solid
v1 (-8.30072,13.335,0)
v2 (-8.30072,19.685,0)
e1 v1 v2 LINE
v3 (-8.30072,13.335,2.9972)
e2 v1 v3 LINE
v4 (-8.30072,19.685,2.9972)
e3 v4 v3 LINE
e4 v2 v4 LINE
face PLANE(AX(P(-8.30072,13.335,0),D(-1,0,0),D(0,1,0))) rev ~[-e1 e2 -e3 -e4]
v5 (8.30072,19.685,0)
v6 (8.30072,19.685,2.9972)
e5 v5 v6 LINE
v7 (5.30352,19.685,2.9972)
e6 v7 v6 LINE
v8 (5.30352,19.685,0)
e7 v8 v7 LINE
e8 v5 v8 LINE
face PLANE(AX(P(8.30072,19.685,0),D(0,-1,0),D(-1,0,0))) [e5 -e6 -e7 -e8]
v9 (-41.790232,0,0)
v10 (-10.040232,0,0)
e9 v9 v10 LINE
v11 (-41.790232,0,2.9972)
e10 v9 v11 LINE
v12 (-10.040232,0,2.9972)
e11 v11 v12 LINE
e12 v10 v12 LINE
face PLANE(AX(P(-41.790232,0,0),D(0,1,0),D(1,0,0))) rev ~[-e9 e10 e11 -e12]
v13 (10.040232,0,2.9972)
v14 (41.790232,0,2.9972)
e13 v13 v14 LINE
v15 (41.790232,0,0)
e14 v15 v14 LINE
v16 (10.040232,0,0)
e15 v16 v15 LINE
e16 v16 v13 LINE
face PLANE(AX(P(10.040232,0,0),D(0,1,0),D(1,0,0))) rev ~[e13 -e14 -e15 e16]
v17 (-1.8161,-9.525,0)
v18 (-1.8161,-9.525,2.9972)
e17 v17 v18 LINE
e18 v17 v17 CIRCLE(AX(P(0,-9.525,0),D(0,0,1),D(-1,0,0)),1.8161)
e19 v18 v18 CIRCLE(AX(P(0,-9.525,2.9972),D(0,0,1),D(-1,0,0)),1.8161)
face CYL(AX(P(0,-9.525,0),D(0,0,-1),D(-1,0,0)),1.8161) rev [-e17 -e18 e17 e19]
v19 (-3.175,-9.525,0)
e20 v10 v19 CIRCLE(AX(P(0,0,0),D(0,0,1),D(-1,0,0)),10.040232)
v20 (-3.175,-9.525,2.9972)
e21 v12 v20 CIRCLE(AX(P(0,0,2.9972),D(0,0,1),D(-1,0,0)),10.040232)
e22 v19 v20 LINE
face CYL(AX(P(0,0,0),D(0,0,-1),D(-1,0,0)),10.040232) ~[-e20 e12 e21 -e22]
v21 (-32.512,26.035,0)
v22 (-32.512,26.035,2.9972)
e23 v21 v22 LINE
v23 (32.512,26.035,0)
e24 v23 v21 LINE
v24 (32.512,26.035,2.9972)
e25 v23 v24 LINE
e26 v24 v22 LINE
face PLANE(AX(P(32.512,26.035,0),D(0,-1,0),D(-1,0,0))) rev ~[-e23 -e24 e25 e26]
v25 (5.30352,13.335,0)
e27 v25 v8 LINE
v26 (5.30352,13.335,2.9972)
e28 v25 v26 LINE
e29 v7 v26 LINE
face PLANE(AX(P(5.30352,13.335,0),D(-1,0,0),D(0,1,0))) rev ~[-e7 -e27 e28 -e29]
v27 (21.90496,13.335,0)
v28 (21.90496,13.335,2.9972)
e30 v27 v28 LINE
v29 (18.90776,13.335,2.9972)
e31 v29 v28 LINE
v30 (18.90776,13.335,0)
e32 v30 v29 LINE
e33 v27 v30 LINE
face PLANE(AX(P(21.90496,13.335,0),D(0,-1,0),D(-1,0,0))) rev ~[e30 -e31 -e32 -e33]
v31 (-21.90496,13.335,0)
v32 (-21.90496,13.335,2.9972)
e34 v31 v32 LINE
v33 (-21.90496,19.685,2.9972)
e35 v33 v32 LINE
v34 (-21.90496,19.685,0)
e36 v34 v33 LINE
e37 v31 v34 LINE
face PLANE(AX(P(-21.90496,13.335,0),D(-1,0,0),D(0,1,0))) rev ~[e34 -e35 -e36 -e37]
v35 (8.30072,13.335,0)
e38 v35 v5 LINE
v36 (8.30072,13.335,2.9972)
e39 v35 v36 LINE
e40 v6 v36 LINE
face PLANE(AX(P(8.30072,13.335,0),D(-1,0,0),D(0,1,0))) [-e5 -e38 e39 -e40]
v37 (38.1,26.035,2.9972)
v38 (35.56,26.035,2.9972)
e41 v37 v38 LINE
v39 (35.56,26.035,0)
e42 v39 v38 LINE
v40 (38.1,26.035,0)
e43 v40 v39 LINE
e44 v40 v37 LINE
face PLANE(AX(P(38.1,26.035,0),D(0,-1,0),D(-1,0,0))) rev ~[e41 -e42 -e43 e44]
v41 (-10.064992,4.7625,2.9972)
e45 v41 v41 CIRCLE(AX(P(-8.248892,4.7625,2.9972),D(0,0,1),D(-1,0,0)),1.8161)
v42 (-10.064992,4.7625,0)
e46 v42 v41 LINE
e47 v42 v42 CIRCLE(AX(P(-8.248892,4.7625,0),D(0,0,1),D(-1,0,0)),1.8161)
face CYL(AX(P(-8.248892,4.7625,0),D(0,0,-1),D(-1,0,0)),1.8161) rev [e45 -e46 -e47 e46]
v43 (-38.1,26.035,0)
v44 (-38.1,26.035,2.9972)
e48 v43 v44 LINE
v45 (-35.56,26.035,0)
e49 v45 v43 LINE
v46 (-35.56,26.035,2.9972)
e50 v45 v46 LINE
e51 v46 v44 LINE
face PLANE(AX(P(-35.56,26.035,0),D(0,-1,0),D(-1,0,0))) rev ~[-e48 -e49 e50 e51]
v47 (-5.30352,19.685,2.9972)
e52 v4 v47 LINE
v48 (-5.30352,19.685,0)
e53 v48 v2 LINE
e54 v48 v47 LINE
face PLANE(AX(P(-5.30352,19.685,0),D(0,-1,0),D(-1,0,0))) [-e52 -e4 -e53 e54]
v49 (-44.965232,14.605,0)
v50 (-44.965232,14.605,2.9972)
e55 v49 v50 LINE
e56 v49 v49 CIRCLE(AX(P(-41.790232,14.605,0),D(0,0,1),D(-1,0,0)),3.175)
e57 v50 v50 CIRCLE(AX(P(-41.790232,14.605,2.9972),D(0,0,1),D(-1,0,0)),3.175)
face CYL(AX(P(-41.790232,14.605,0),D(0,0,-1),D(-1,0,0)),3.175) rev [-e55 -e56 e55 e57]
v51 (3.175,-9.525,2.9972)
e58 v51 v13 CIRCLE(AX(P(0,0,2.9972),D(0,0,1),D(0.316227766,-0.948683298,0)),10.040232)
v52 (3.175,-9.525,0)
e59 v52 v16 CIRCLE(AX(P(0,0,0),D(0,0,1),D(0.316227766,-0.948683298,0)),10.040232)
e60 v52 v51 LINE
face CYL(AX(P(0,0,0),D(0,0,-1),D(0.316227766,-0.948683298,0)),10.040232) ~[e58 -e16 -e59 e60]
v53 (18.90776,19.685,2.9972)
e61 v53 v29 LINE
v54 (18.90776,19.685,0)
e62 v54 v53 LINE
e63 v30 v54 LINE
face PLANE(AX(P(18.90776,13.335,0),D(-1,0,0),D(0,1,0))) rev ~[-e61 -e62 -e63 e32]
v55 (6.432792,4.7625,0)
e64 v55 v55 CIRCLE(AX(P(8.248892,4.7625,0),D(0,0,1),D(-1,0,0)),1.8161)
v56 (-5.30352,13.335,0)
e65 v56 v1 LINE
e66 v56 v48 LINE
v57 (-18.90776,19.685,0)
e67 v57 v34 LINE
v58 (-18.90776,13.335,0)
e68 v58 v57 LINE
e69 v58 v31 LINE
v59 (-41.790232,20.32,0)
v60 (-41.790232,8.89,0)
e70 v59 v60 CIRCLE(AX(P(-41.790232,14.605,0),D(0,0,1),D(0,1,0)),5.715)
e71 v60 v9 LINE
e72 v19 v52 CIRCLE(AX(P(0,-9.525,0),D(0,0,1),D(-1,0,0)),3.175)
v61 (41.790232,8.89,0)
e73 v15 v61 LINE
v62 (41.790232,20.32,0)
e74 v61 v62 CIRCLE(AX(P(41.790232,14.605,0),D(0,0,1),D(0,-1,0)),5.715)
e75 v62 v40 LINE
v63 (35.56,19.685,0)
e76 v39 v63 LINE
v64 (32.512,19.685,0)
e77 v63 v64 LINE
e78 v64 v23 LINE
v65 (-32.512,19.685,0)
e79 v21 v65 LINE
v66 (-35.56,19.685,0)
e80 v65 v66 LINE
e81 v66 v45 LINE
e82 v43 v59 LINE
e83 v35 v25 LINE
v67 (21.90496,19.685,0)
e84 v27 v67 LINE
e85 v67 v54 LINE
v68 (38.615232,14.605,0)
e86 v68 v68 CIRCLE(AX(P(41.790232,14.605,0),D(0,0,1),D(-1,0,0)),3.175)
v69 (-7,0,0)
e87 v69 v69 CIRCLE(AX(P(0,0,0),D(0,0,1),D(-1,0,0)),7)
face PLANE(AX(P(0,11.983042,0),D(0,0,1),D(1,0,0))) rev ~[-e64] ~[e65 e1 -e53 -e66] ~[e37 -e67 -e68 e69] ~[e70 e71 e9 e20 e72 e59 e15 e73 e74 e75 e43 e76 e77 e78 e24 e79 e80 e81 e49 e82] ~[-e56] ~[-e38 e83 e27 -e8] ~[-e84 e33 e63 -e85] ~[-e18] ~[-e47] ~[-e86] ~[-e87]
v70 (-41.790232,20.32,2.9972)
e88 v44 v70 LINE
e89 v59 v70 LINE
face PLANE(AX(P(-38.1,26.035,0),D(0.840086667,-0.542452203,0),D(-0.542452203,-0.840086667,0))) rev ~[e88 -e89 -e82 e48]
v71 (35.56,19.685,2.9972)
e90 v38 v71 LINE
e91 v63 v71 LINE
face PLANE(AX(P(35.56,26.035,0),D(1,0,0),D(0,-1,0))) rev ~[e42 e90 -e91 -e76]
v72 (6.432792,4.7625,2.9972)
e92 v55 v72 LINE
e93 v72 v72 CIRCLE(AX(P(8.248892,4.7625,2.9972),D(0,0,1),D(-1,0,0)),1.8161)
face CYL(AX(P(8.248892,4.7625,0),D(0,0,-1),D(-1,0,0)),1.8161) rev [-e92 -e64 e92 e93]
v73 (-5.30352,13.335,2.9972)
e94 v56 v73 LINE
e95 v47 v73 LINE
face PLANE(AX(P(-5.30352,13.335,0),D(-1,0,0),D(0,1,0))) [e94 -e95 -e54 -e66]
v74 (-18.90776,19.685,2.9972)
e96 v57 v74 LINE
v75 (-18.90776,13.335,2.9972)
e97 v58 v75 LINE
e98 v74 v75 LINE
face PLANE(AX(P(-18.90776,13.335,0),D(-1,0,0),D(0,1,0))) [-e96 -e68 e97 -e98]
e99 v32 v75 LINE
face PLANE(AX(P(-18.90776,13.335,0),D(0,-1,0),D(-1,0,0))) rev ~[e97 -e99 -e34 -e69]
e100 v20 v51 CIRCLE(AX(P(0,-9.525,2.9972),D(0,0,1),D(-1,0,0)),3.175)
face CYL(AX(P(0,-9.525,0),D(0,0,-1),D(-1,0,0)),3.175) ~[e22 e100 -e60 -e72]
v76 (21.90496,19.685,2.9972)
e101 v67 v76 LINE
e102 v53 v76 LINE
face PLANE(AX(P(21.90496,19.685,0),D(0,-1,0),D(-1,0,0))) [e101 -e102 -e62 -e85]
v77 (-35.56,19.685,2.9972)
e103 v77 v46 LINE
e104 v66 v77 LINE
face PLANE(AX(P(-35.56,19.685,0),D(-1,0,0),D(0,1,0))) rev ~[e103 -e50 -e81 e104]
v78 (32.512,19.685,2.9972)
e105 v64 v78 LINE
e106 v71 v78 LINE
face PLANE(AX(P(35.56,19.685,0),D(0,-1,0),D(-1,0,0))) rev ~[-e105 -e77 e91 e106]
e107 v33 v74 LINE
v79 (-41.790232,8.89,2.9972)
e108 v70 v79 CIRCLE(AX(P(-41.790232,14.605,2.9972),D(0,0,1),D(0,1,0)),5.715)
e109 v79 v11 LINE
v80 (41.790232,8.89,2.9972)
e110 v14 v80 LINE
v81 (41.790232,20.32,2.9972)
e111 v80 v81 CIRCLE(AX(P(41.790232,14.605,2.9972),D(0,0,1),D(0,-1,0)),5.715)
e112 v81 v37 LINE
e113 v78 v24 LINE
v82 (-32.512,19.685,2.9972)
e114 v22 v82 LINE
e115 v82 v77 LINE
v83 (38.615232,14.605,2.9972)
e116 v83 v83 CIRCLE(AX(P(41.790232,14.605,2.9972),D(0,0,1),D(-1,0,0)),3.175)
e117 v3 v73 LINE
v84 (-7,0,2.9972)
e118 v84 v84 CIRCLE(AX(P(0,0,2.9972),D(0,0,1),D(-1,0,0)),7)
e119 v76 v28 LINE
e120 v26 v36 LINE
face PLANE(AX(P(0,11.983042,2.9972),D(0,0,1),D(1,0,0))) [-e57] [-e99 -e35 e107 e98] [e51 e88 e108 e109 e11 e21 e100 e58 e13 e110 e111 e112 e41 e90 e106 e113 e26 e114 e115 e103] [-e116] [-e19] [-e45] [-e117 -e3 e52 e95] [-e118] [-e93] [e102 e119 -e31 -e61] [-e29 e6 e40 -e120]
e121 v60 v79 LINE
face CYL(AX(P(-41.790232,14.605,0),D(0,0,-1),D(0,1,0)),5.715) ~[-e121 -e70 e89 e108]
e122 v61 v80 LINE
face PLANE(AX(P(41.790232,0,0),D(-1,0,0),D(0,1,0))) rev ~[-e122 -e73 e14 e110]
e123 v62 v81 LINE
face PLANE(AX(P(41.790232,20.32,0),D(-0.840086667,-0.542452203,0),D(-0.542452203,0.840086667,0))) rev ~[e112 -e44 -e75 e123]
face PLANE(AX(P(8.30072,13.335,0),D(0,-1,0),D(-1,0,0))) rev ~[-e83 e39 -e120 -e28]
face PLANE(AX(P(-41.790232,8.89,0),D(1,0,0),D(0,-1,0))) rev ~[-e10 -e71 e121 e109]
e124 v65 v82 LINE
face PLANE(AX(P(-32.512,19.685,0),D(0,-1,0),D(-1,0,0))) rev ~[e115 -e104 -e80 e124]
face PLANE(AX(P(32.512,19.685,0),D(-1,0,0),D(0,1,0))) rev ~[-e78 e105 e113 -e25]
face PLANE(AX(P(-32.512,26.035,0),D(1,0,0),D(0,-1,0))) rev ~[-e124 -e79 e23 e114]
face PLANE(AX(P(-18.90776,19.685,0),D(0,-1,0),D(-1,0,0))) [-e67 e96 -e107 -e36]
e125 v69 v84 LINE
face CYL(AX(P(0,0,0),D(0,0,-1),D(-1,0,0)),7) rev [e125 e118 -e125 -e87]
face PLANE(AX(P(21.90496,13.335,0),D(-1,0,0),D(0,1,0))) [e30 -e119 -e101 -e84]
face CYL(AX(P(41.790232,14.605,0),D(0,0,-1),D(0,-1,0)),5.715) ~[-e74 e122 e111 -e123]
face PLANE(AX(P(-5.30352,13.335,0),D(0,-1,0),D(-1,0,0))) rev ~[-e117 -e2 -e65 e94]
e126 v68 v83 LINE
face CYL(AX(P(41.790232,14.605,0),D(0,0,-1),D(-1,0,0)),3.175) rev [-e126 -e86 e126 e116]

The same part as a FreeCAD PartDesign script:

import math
import FreeCAD as App
import Part
import Sketcher

V = App.Vector
Q = App.Units.Quantity


def add_polygon(sketch, points):
    """Adds a closed chain of lines whose ends are joined by coincident constraints."""
    first, n = sketch.GeometryCount, len(points)
    for a, b in zip(points, points[1:] + points[:1]):
        sketch.addGeometry(Part.LineSegment(App.Vector(*a, 0), App.Vector(*b, 0)), False)
    for i in range(n):
        sketch.addConstraint(Sketcher.Constraint("Coincident", first + i, 2, first + (i + 1) % n, 1))

doc = App.newDocument("Part")
body = doc.addObject("PartDesign::Body", "Body")

sketch1 = body.newObject("Sketcher::SketchObject", "Sketch")
sketch1.AttachmentSupport = (doc.getObject("XY_Plane"), [""])
sketch1.MapMode = "FlatFace"
sketch1.addGeometry([
    Part.LineSegment(V(-35.6, 26, 0), V(-38.1, 26, 0)),
    Part.LineSegment(V(-38.1, 26, 0), V(-41.8, 20.3, 0)),
    Part.ArcOfCircle(Part.Circle(V(-41.8, 14.6, 0), V(0, 0, 1), 5.7), math.radians(90), math.radians(270)),
    Part.LineSegment(V(-41.8, 8.9, 0), V(-41.8, 0, 0)),
    Part.LineSegment(V(-41.8, 0, 0), V(-10, 0, 0)),
    Part.ArcOfCircle(Part.Circle(V(0, 0, 0), V(0, 0, 1), 10), math.radians(-180), math.radians(-108)),
    Part.ArcOfCircle(Part.Circle(V(0, -9.5, 0), V(0, 0, 1), 3.2), math.radians(180), math.radians(360)),
    Part.ArcOfCircle(Part.Circle(V(0, 0, 0), V(0, 0, 1), 10), math.radians(-72), math.radians(0)),
    Part.LineSegment(V(10, 0, 0), V(41.8, 0, 0)),
    Part.LineSegment(V(41.8, 0, 0), V(41.8, 8.9, 0)),
    Part.ArcOfCircle(Part.Circle(V(41.8, 14.6, 0), V(0, 0, 1), 5.7), math.radians(-90), math.radians(90)),
    Part.LineSegment(V(41.8, 20.3, 0), V(38.1, 26, 0)),
    Part.LineSegment(V(38.1, 26, 0), V(35.6, 26, 0)),
    Part.LineSegment(V(35.6, 26, 0), V(35.6, 19.7, 0)),
    Part.LineSegment(V(35.6, 19.7, 0), V(32.5, 19.7, 0)),
    Part.LineSegment(V(32.5, 19.7, 0), V(32.5, 26, 0)),
    Part.LineSegment(V(32.5, 26, 0), V(-32.5, 26, 0)),
    Part.LineSegment(V(-32.5, 26, 0), V(-32.5, 19.7, 0)),
    Part.LineSegment(V(-32.5, 19.7, 0), V(-35.6, 19.7, 0)),
    Part.LineSegment(V(-35.6, 19.7, 0), V(-35.6, 26, 0)),
    Part.Circle(V(0, -9.5, 0), V(0, 0, 1), 1.8),
    Part.Circle(V(0, 0, 0), V(0, 0, 1), 7),
    Part.Circle(V(-8.2, 4.8, 0), V(0, 0, 1), 1.8),
    Part.Circle(V(-41.8, 14.6, 0), V(0, 0, 1), 3.2),
    Part.Circle(V(8.2, 4.8, 0), V(0, 0, 1), 1.8),
    Part.Circle(V(41.8, 14.6, 0), V(0, 0, 1), 3.2),
], False)
sketch1.addConstraint([
    Sketcher.Constraint("Coincident", 0, 2, 1, 1),
    Sketcher.Constraint("Coincident", 1, 2, 2, 1),
    Sketcher.Constraint("Coincident", 2, 2, 3, 1),
    Sketcher.Constraint("Coincident", 3, 2, 4, 1),
    Sketcher.Constraint("Coincident", 4, 2, 5, 1),
    Sketcher.Constraint("Coincident", 5, 2, 6, 1),
    Sketcher.Constraint("Coincident", 6, 2, 7, 1),
    Sketcher.Constraint("Coincident", 7, 2, 8, 1),
    Sketcher.Constraint("Coincident", 8, 2, 9, 1),
    Sketcher.Constraint("Coincident", 9, 2, 10, 1),
    Sketcher.Constraint("Coincident", 10, 2, 11, 1),
    Sketcher.Constraint("Coincident", 11, 2, 12, 1),
    Sketcher.Constraint("Coincident", 12, 2, 13, 1),
    Sketcher.Constraint("Coincident", 13, 2, 14, 1),
    Sketcher.Constraint("Coincident", 14, 2, 15, 1),
    Sketcher.Constraint("Coincident", 15, 2, 16, 1),
    Sketcher.Constraint("Coincident", 16, 2, 17, 1),
    Sketcher.Constraint("Coincident", 17, 2, 18, 1),
    Sketcher.Constraint("Coincident", 18, 2, 19, 1),
    Sketcher.Constraint("Coincident", 19, 2, 0, 1),
    Sketcher.Constraint("Horizontal", 0),
    Sketcher.Constraint("Vertical", 3),
    Sketcher.Constraint("Horizontal", 4),
    Sketcher.Constraint("Horizontal", 8),
    Sketcher.Constraint("Vertical", 9),
    Sketcher.Constraint("Horizontal", 12),
    Sketcher.Constraint("Vertical", 13),
    Sketcher.Constraint("Horizontal", 14),
    Sketcher.Constraint("Vertical", 15),
    Sketcher.Constraint("Horizontal", 16),
    Sketcher.Constraint("Vertical", 17),
    Sketcher.Constraint("Horizontal", 18),
    Sketcher.Constraint("Vertical", 19),
    Sketcher.Constraint("Coincident", 5, 3, -1, 1),
    Sketcher.Constraint("Coincident", 7, 3, -1, 1),
    Sketcher.Constraint("Coincident", 21, 3, -1, 1),
    Sketcher.Constraint("Coincident", 20, 3, 6, 3),
    Sketcher.Constraint("Coincident", 23, 3, 2, 3),
    Sketcher.Constraint("Coincident", 25, 3, 10, 3),
    Sketcher.Constraint("Equal", 5, 7),
    Sketcher.Constraint("Equal", 2, 10),
    Sketcher.Constraint("Equal", 20, 22),
    Sketcher.Constraint("Equal", 6, 23),
    Sketcher.Constraint("Equal", 22, 24),
    Sketcher.Constraint("Equal", 23, 25),
    Sketcher.Constraint("Symmetric", 3, 2, 8, 2, -1, 1),
    Sketcher.Constraint("Symmetric", 2, 3, 10, 3, -2),
    Sketcher.Constraint("Symmetric", 22, 3, 24, 3, -2),
    Sketcher.Constraint("Symmetric", 0, 2, 11, 2, -2),
    Sketcher.Constraint("Symmetric", 14, 2, 17, 2, -2),
    Sketcher.Constraint("PointOnObject", 6, 3, -2),
    Sketcher.Constraint("PointOnObject", 3, 2, -1),
    Sketcher.Constraint("Horizontal", 20, 3, 5, 2),
    Sketcher.Constraint("Horizontal", 12, 2, 15, 2),
    Sketcher.Constraint("Vertical", 23, 3, 1, 2),
    Sketcher.Constraint("Vertical", 1, 2, 2, 2),
    Sketcher.Constraint("Vertical", 9, 2, 10, 2),
    Sketcher.Constraint("Equal", 0, 12),
    Sketcher.Constraint("Diameter", 23, Q("0.25 in")),
    Sketcher.Constraint("Diameter", 20, Q("0.143 in")),
    Sketcher.Constraint("DistanceX", 0, 2, 0, 1, Q("0.1 in")),
    Sketcher.Constraint("Radius", 2, Q("0.225 in")),
    Sketcher.Constraint("DistanceX", 4, 1, 4, 2, Q("1.25 in")),
    Sketcher.Constraint("DistanceX", 14, 2, 14, 1, Q("0.12 in")),
    Sketcher.Constraint("DistanceX", 16, 2, 16, 1, Q("2.56 in")),
    Sketcher.Constraint("DistanceY", 3, 2, 3, 1, Q("0.35 in")),
    Sketcher.Constraint("DistanceY", 13, 2, 13, 1, Q("0.25 in")),
    Sketcher.Constraint("DistanceY", 10, 3, 13, 2, Q("0.2 in")),
    Sketcher.Constraint("Diameter", 21, 14.0),
    Sketcher.Constraint("DistanceY", 6, 3, 2, 3, Q("0.95 in")),
    Sketcher.Constraint("DistanceY", -1, 1, 22, 3, Q("0.1875 in")),
    Sketcher.Constraint("DistanceX", 22, 3, -1, 1, 8.248892),
])
pad1 = body.newObject("PartDesign::Pad", "Pad")
pad1.Profile = sketch1
pad1.Length = Q("0.118 in")

sketch2 = body.newObject("Sketcher::SketchObject", "Sketch001")
sketch2.AttachmentSupport = (doc.getObject("XY_Plane"), [""])
sketch2.MapMode = "FlatFace"
add_polygon(sketch2, [(21.9, 19.7), (21.9, 13.3), (18.9, 13.3), (18.9, 19.7)])
add_polygon(sketch2, [(8.3, 19.7), (8.3, 13.3), (5.3, 13.3), (5.3, 19.7)])
add_polygon(sketch2, [(-5.3, 19.7), (-5.3, 13.3), (-8.3, 13.3), (-8.3, 19.7)])
add_polygon(sketch2, [(-18.9, 19.7), (-18.9, 13.3), (-21.9, 13.3), (-21.9, 19.7)])
sketch2.addConstraint([
    Sketcher.Constraint("Vertical", 0),
    Sketcher.Constraint("Horizontal", 1),
    Sketcher.Constraint("Vertical", 2),
    Sketcher.Constraint("Horizontal", 3),
    Sketcher.Constraint("Vertical", 4),
    Sketcher.Constraint("Horizontal", 5),
    Sketcher.Constraint("Vertical", 6),
    Sketcher.Constraint("Horizontal", 7),
    Sketcher.Constraint("Vertical", 8),
    Sketcher.Constraint("Horizontal", 9),
    Sketcher.Constraint("Vertical", 10),
    Sketcher.Constraint("Horizontal", 11),
    Sketcher.Constraint("Vertical", 12),
    Sketcher.Constraint("Horizontal", 13),
    Sketcher.Constraint("Vertical", 14),
    Sketcher.Constraint("Horizontal", 15),
    Sketcher.Constraint("Symmetric", 5, 2, 8, 2, -2),
    Sketcher.Constraint("Symmetric", 7, 2, 10, 2, -2),
    Sketcher.Constraint("Symmetric", 1, 2, 12, 2, -2),
    Sketcher.Constraint("Symmetric", 3, 2, 14, 2, -2),
    Sketcher.Constraint("Horizontal", 1, 2, 4, 2),
    Sketcher.Constraint("Horizontal", 3, 2, 6, 2),
    Sketcher.Constraint("Equal", 3, 5),
    Sketcher.Constraint("DistanceY", 0, 2, 0, 1, Q("0.25 in")),
    Sketcher.Constraint("DistanceX", 1, 2, 1, 1, Q("0.118 in")),
    Sketcher.Constraint("DistanceY", -1, 1, 0, 2, Q("0.525 in")),
    Sketcher.Constraint("DistanceX", -1, 1, 0, 2, Q("0.8624 in")),
    Sketcher.Constraint("DistanceX", -1, 1, 4, 2, Q("0.3268 in")),
])
pocket1 = body.newObject("PartDesign::Pocket", "Pocket")
pocket1.Profile = sketch2
pocket1.Type = "ThroughAll"
pocket1.Reversed = True

doc.recompute()
